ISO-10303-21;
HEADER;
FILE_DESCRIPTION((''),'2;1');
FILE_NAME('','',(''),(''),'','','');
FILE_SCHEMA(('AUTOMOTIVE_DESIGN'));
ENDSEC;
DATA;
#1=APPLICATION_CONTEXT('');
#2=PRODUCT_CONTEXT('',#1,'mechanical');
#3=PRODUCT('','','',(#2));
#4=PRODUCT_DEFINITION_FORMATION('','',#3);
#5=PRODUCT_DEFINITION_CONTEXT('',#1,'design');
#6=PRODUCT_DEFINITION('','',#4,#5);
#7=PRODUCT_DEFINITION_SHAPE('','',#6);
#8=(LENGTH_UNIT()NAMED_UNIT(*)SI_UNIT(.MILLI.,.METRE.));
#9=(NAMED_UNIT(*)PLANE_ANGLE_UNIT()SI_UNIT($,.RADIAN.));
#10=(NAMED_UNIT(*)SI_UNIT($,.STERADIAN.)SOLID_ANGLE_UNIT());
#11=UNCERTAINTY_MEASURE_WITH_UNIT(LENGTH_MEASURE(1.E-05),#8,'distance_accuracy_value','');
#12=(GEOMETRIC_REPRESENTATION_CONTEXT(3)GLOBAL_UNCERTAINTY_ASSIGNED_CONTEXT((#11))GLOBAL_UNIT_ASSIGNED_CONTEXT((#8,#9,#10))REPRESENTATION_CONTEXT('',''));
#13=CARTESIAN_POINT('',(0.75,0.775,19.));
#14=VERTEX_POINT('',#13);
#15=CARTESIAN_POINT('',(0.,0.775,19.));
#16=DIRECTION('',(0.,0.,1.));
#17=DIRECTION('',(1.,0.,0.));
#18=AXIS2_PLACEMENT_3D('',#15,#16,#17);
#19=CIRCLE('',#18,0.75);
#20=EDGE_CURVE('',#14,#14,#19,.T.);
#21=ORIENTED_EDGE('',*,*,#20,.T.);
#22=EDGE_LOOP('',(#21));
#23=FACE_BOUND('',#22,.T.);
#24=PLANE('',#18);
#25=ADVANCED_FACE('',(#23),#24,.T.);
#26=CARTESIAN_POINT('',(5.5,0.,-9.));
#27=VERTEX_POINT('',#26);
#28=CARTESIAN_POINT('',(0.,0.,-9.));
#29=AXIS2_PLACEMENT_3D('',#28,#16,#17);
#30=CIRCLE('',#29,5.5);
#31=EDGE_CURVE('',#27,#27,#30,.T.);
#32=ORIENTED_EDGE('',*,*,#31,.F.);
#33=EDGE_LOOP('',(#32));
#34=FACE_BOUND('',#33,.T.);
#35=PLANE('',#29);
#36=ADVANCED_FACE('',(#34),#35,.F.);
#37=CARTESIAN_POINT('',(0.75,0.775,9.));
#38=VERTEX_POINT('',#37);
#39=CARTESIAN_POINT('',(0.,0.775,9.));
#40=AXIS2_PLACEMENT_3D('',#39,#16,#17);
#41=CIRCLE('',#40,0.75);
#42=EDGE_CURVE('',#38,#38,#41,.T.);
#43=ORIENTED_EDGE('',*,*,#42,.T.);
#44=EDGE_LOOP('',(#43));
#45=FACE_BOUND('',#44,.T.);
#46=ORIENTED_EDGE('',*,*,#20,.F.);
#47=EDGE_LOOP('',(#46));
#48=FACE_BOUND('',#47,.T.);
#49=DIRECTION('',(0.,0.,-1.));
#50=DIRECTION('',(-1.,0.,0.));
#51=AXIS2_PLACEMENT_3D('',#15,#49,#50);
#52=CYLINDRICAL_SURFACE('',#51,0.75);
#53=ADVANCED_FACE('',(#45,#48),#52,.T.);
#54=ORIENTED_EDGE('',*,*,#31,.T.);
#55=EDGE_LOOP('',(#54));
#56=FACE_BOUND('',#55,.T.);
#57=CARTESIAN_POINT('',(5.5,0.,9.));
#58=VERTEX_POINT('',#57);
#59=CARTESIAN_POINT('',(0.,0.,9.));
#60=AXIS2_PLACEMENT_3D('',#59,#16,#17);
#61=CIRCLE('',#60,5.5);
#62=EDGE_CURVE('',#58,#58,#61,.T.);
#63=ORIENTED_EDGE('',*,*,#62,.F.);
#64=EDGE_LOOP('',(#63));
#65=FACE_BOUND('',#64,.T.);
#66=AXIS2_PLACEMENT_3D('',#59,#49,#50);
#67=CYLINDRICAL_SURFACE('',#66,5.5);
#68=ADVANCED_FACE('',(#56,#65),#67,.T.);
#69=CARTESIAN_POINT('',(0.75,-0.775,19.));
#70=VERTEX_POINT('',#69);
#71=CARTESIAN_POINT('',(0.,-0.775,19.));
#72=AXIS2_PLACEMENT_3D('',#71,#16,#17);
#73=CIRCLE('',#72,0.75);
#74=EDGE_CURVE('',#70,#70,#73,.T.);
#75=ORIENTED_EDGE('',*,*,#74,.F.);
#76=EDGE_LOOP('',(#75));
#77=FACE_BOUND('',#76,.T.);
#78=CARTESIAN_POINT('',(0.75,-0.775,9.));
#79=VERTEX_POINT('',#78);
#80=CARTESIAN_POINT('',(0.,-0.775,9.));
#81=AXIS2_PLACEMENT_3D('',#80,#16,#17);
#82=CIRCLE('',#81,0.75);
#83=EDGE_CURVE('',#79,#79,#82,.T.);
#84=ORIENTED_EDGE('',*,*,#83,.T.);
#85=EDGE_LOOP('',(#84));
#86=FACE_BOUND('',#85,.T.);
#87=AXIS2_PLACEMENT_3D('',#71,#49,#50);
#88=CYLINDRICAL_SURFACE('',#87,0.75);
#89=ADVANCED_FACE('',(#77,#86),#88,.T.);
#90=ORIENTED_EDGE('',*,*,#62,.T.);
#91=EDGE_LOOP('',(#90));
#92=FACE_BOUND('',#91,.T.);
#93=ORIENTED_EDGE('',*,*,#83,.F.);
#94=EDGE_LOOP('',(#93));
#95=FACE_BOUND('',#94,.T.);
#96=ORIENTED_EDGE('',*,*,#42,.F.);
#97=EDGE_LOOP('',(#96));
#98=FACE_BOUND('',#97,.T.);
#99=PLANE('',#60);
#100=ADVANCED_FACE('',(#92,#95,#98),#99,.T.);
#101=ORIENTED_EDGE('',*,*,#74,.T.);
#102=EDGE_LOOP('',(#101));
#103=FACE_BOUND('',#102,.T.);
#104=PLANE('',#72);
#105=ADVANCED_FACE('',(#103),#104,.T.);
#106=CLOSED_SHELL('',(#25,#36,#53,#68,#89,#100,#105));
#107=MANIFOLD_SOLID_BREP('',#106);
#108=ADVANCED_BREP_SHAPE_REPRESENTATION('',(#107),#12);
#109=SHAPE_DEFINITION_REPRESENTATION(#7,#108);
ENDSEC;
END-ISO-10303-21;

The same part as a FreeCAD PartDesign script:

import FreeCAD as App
import Part
import Sketcher
Q = App.Units.Quantity

doc = App.newDocument("Part")
body = doc.addObject("PartDesign::Body", "Body")

# Sketch on XY plane
sketch1 = body.newObject("Sketcher::SketchObject", "Sketch")
sketch1.AttachmentSupport = (doc.getObject("XY_Plane"), [""])
sketch1.MapMode = "FlatFace"
sketch1.addGeometry(Part.Circle(App.Vector(0, 0, 0), App.Vector(0, 0, 1), 6), False)
sketch1.addConstraint([
    Sketcher.Constraint("Coincident", 0, 3, -1, 1),
    Sketcher.Constraint("Diameter", 0, Q("11 mm")),
])
pad1 = body.newObject("PartDesign::Pad", "Pad")
pad1.Profile = sketch1
pad1.Length = 18
pad1.Midplane = True

# Sketch on XY plane
sketch2 = body.newObject("Sketcher::SketchObject", "Sketch001")
sketch2.AttachmentSupport = (doc.getObject("XY_Plane"), [""])
sketch2.MapMode = "FlatFace"
sketch2.AttachmentOffset = App.Placement(App.Vector(0, 0, 9), App.Rotation())
sketch2.addGeometry([
    Part.Circle(App.Vector(0, -0.8, 0), App.Vector(0, 0, 1), 0.8),
    Part.Circle(App.Vector(0, 0.8, 0), App.Vector(0, 0, 1), 0.8),
], False)
sketch2.addConstraint([
    Sketcher.Constraint("Equal", 0, 1),
    Sketcher.Constraint("Symmetric", 0, 3, 1, 3, -1, 1),
    Sketcher.Constraint("PointOnObject", 0, 3, -2),
    Sketcher.Constraint("Diameter", 0, Q("1.5 mm")),
    Sketcher.Constraint("DistanceY", 0, 3, 1, 3, Q("1.55 mm")),
])
pad2 = body.newObject("PartDesign::Pad", "Pad001")
pad2.Profile = sketch2
pad2.Length = 10

doc.recompute()
